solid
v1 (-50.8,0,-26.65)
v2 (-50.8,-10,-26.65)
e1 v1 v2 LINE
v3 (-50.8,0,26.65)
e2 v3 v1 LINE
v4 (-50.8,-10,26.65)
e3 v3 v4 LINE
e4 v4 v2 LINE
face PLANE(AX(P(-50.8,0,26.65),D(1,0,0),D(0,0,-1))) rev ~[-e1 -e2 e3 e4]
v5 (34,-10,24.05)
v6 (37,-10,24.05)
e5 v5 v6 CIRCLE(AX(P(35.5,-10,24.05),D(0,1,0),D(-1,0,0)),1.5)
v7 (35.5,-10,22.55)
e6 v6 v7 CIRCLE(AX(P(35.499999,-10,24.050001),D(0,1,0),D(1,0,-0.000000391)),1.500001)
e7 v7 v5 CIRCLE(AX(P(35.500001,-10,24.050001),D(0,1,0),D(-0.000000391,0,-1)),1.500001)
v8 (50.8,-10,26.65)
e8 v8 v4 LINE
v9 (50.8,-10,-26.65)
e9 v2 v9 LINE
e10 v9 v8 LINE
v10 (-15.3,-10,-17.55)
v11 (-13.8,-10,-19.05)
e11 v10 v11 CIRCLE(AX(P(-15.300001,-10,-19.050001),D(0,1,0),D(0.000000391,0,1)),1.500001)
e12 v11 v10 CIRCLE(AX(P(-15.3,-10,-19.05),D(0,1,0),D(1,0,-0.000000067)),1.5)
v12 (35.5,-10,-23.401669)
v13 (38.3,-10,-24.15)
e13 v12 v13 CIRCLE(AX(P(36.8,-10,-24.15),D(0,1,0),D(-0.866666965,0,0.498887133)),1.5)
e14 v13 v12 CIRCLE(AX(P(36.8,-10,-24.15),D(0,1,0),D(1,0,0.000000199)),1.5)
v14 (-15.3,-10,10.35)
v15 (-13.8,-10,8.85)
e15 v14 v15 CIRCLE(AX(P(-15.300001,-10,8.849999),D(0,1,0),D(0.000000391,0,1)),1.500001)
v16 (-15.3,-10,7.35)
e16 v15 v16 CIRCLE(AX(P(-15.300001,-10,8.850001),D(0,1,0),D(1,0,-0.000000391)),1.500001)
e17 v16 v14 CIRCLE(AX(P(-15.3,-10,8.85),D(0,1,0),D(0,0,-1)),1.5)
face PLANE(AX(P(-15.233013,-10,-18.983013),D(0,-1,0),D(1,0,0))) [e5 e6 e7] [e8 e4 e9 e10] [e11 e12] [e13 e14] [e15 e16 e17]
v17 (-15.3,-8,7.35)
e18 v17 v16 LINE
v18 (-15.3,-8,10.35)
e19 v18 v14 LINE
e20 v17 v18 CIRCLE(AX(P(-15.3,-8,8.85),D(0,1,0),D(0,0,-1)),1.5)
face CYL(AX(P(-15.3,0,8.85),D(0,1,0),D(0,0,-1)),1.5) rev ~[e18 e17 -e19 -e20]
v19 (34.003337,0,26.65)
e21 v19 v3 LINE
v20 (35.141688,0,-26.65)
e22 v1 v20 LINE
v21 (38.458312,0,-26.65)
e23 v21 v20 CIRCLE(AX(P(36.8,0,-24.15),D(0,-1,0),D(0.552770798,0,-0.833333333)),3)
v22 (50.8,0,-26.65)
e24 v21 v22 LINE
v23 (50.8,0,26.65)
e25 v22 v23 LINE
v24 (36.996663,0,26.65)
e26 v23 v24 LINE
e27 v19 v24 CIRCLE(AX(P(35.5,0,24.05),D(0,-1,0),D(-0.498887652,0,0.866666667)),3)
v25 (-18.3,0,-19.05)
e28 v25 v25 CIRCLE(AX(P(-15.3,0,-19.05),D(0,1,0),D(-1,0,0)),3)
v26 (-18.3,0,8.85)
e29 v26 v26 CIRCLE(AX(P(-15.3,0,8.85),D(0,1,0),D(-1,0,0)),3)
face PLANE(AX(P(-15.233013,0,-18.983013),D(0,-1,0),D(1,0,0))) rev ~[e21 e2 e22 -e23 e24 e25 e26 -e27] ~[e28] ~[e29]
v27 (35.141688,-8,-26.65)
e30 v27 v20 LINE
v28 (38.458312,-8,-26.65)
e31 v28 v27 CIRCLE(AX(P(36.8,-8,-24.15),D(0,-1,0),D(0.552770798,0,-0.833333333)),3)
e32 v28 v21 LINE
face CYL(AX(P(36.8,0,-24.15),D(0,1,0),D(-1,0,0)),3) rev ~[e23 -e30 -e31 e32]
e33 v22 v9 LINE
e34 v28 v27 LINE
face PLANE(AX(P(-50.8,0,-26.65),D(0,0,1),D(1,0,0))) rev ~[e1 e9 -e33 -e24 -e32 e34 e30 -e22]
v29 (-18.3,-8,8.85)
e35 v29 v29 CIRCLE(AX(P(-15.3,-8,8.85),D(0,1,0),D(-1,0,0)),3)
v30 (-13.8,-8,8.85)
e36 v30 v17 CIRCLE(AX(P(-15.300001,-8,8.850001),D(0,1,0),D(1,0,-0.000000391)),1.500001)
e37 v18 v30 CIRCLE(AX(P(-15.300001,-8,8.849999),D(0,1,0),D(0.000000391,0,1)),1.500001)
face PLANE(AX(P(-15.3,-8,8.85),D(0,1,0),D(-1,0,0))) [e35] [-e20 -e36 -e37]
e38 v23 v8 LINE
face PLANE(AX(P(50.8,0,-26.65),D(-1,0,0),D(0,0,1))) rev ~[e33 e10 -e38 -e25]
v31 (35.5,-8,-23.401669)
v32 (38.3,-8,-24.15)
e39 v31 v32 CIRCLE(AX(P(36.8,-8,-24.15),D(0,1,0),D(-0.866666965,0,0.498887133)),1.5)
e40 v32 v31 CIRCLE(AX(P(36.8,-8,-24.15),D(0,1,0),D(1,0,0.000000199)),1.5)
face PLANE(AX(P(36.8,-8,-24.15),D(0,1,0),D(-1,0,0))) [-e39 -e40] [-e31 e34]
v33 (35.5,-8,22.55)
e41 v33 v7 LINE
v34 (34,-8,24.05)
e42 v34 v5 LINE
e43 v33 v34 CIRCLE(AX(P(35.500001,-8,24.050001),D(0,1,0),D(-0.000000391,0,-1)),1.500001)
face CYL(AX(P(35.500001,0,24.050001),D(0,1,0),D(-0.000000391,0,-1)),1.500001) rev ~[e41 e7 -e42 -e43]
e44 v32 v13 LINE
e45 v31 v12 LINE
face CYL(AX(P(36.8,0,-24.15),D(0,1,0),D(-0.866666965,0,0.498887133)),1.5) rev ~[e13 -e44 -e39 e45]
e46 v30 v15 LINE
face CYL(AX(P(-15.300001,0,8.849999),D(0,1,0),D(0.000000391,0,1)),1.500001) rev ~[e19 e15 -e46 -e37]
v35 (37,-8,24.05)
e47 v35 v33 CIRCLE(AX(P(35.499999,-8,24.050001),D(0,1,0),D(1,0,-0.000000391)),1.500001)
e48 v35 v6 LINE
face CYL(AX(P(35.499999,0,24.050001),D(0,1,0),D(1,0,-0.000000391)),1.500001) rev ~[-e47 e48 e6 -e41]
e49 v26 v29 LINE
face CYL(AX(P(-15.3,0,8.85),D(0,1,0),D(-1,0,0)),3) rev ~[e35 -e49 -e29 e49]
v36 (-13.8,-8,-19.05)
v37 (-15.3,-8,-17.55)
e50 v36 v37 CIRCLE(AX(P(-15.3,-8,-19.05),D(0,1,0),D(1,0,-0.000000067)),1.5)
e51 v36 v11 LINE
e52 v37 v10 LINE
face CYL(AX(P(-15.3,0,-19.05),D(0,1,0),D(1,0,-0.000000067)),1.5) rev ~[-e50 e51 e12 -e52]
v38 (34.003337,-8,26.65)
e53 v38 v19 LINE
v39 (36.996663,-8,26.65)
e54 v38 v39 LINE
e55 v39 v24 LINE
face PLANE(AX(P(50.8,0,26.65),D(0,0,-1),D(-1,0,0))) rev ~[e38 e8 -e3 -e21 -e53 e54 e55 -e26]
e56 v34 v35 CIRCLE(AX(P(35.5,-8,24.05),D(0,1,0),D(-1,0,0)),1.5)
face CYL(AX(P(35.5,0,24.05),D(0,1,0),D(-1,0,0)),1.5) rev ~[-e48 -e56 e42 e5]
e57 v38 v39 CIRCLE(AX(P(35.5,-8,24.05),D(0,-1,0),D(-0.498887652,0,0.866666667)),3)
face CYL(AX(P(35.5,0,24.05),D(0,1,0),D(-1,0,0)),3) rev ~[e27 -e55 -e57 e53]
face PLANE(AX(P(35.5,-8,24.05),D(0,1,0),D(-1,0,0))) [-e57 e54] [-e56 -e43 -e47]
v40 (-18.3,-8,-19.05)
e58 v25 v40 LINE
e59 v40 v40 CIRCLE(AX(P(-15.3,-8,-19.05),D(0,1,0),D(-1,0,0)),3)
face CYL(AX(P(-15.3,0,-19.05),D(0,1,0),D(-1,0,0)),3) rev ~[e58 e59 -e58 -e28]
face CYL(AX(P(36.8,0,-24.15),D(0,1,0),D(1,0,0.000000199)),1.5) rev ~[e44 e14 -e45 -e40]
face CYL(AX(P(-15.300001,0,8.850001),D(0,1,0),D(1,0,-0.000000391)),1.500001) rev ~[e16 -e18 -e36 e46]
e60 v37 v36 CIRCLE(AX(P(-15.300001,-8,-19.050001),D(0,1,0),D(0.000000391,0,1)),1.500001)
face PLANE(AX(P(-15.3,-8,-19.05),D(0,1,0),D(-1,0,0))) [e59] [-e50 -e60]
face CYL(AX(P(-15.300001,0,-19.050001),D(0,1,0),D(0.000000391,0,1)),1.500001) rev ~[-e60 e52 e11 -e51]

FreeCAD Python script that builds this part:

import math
import FreeCAD as App
import Part
import Sketcher

V = App.Vector
Q = App.Units.Quantity


def add_polygon(sketch, points):
    """Adds a closed chain of lines whose ends are joined by coincident constraints."""
    first, n = sketch.GeometryCount, len(points)
    for a, b in zip(points, points[1:] + points[:1]):
        sketch.addGeometry(Part.LineSegment(App.Vector(*a, 0), App.Vector(*b, 0)), False)
    for i in range(n):
        sketch.addConstraint(Sketcher.Constraint("Coincident", first + i, 2, first + (i + 1) % n, 1))

doc = App.newDocument("Part")
body = doc.addObject("PartDesign::Body", "Body")

sketch1 = body.newObject("Sketcher::SketchObject", "Sketch")
sketch1.AttachmentSupport = (doc.getObject("XZ_Plane"), [""])
sketch1.MapMode = "FlatFace"
add_polygon(sketch1, [(50.8, 26.6), (-50.8, 26.6), (-50.8, -26.6), (50.8, -26.6)])
sketch1.addGeometry(Part.ArcOfCircle(Part.Circle(V(-15.3, -19.1, 0), V(0, 0, 1), 1.5), math.radians(0), math.radians(90)), False)
sketch1.addGeometry(Part.ArcOfCircle(Part.Circle(V(-15.3, -19, 0), V(0, 0, 1), 1.5), math.radians(90), math.radians(360)), False)
sketch1.addGeometry(Part.ArcOfCircle(Part.Circle(V(36.8, -24.2, 0), V(0, 0, 1), 1.5), math.radians(150), math.radians(360)), False)
sketch1.addGeometry(Part.ArcOfCircle(Part.Circle(V(36.8, -24.1, 0), V(0, 0, 1), 1.5), math.radians(0), math.radians(150)), False)
sketch1.addGeometry(Part.ArcOfCircle(Part.Circle(V(-15.3, 8.9, 0), V(0, 0, 1), 1.5), math.radians(-90), math.radians(0)), False)
sketch1.addGeometry(Part.ArcOfCircle(Part.Circle(V(-15.3, 8.8, 0), V(0, 0, 1), 1.5), math.radians(90), math.radians(270)), False)
sketch1.addGeometry(Part.ArcOfCircle(Part.Circle(V(-15.3, 8.8, 0), V(0, 0, 1), 1.5), math.radians(0), math.radians(90)), False)
sketch1.addGeometry(Part.ArcOfCircle(Part.Circle(V(35.5, 24.1, 0), V(0, 0, 1), 1.5), math.radians(0), math.radians(180)), False)
sketch1.addGeometry(Part.ArcOfCircle(Part.Circle(V(35.5, 24.1, 0), V(0, 0, 1), 1.5), math.radians(-90), math.radians(0)), False)
sketch1.addGeometry(Part.ArcOfCircle(Part.Circle(V(35.5, 24.1, 0), V(0, 0, 1), 1.5), math.radians(-180), math.radians(-90)), False)
sketch1.addConstraint(Sketcher.Constraint("Tangent", 4, 1, 5, 2))
sketch1.addConstraint(Sketcher.Constraint("Coincident", 5, 1, 4, 2))
sketch1.addConstraint(Sketcher.Constraint("Tangent", 6, 1, 7, 2))
sketch1.addConstraint(Sketcher.Constraint("Coincident", 7, 1, 6, 2))
sketch1.addConstraint(Sketcher.Constraint("Tangent", 8, 1, 9, 2))
sketch1.addConstraint(Sketcher.Constraint("Tangent", 9, 1, 10, 2))
sketch1.addConstraint(Sketcher.Constraint("Tangent", 10, 1, 8, 2))
sketch1.addConstraint(Sketcher.Constraint("Tangent", 11, 1, 12, 2))
sketch1.addConstraint(Sketcher.Constraint("Tangent", 12, 1, 13, 2))
sketch1.addConstraint(Sketcher.Constraint("Tangent", 13, 1, 11, 2))
sketch1.addConstraint(Sketcher.Constraint("Horizontal", 0))
sketch1.addConstraint(Sketcher.Constraint("Vertical", 1))
sketch1.addConstraint(Sketcher.Constraint("Horizontal", 2))
sketch1.addConstraint(Sketcher.Constraint("Vertical", 3))
sketch1.addConstraint(Sketcher.Constraint("Equal", 5, 6))
sketch1.addConstraint(Sketcher.Constraint("Equal", 7, 8))
sketch1.addConstraint(Sketcher.Constraint("Equal", 10, 11))
sketch1.addConstraint(Sketcher.Constraint("Symmetric", 0, 2, 2, 2, -1, 1))
sketch1.addConstraint(Sketcher.Constraint("Horizontal", 5, 3, 4, 1))
sketch1.addConstraint(Sketcher.Constraint("Horizontal", 6, 3, 7, 1))
sketch1.addConstraint(Sketcher.Constraint("Horizontal", 9, 3, 10, 1))
sketch1.addConstraint(Sketcher.Constraint("Horizontal", 13, 3, 11, 1))
sketch1.addConstraint(Sketcher.Constraint("Horizontal", 11, 1, 13, 1))
sketch1.addConstraint(Sketcher.Constraint("Vertical", 5, 3, 8, 3))
sketch1.addConstraint(Sketcher.Constraint("Vertical", 10, 3, 5, 1))
sketch1.addConstraint(Sketcher.Constraint("Vertical", 13, 3, 6, 1))
sketch1.addConstraint(Sketcher.Constraint("Vertical", 5, 1, 8, 1))
sketch1.addConstraint(Sketcher.Constraint("Vertical", 8, 1, 9, 1))
sketch1.addConstraint(Sketcher.Constraint("Vertical", 6, 1, 12, 1))
sketch1.addConstraint(Sketcher.Constraint("Radius", 4, Q("1.500001 mm")))
sketch1.addConstraint(Sketcher.Constraint("DistanceX", 0, 2, 0, 1, Q("101.6 mm")))
sketch1.addConstraint(Sketcher.Constraint("DistanceY", 1, 2, 1, 1, Q("53.3 mm")))
sketch1.addConstraint(Sketcher.Constraint("DistanceX", -1, 1, 11, 1, Q("37 mm")))
sketch1.addConstraint(Sketcher.Constraint("DistanceY", 7, 3, 8, 3, Q("33 mm")))
sketch1.addConstraint(Sketcher.Constraint("DistanceX", 7, 3, 2, 2, Q("14 mm")))
sketch1.addConstraint(Sketcher.Constraint("DistanceX", 4, 3, -1, 1, Q("15.300001 mm")))
sketch1.addConstraint(Sketcher.Constraint("DistanceY", 6, 3, 5, 3, Q("5.1 mm")))
sketch1.addConstraint(Sketcher.Constraint("DistanceY", 7, 3, 11, 3, Q("48.2 mm")))
sketch1.addConstraint(Sketcher.Constraint("DistanceY", 8, 3, 0, 2, Q("17.799999 mm")))
pad1 = body.newObject("PartDesign::Pad", "Pad")
pad1.Profile = sketch1
pad1.Length = 10

sketch2 = body.newObject("Sketcher::SketchObject", "Sketch001")
sketch2.AttachmentSupport = (doc.getObject("XZ_Plane"), [""])
sketch2.MapMode = "FlatFace"
sketch2.addGeometry(Part.Circle(V(35.5, 24.1, 0), V(0, 0, 1), 3), False)
sketch2.addGeometry(Part.Circle(V(36.8, -24.1, 0), V(0, 0, 1), 3), False)
sketch2.addGeometry(Part.Circle(V(-15.3, -19.1, 0), V(0, 0, 1), 3), False)
sketch2.addGeometry(Part.Circle(V(-15.3, 8.8, 0), V(0, 0, 1), 3), False)
sketch2.addConstraint(Sketcher.Constraint("Equal", 0, 1))
sketch2.addConstraint(Sketcher.Constraint("Equal", 1, 2))
sketch2.addConstraint(Sketcher.Constraint("Equal", 2, 3))
sketch2.addConstraint(Sketcher.Constraint("Vertical", 2, 3, 3, 3))
sketch2.addConstraint(Sketcher.Constraint("Diameter", 0, Q("6 mm")))
sketch2.addConstraint(Sketcher.Constraint("DistanceY", 1, 3, 3, 3, Q("33 mm")))
sketch2.addConstraint(Sketcher.Constraint("DistanceX", -1, 1, 0, 3, Q("35.5 mm")))
sketch2.addConstraint(Sketcher.Constraint("DistanceX", -1, 1, 1, 3, Q("36.8 mm")))
sketch2.addConstraint(Sketcher.Constraint("DistanceX", 2, 3, -1, 1, Q("15.3 mm")))
sketch2.addConstraint(Sketcher.Constraint("DistanceY", 1, 3, 0, 3, Q("48.2 mm")))
sketch2.addConstraint(Sketcher.Constraint("DistanceY", 1, 3, 2, 3, Q("5.1 mm")))
sketch2.addConstraint(Sketcher.Constraint("DistanceY", -1, 1, 0, 3, Q("24.05 mm")))
pocket1 = body.newObject("PartDesign::Pocket", "Pocket")
pocket1.Profile = sketch2
pocket1.Length = 8
pocket1.Reversed = True

doc.recompute()
